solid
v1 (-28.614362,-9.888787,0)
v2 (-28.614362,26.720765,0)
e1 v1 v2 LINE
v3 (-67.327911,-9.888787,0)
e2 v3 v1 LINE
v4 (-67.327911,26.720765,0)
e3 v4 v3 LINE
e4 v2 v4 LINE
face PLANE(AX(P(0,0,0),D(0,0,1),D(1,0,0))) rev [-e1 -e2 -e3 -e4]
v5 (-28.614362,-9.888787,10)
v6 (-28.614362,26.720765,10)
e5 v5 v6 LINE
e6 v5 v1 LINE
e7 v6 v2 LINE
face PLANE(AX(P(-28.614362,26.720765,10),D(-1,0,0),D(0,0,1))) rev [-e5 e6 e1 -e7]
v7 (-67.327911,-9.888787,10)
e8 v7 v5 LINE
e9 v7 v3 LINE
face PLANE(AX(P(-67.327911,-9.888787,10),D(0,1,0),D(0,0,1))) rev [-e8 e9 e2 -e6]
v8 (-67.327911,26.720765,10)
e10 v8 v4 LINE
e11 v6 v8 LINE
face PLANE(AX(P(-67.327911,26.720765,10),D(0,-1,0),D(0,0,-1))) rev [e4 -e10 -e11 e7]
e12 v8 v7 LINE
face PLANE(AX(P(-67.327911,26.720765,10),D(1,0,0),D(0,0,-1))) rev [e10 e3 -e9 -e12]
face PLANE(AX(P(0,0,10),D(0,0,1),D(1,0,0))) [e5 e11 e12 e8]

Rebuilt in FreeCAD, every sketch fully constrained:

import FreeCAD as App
import Part
import Sketcher
Q = App.Units.Quantity

doc = App.newDocument("Part")
body = doc.addObject("PartDesign::Body", "Body")

# Sketch on XY plane
sketch1 = body.newObject("Sketcher::SketchObject", "Sketch")
sketch1.AttachmentSupport = (doc.getObject("XY_Plane"), [""])
sketch1.MapMode = "FlatFace"
sketch1.addGeometry([
    Part.LineSegment(App.Vector(-67, 27, 0), App.Vector(-67, -10, 0)),
    Part.LineSegment(App.Vector(-67, -10, 0), App.Vector(-29, -10, 0)),
    Part.LineSegment(App.Vector(-29, -10, 0), App.Vector(-29, 27, 0)),
    Part.LineSegment(App.Vector(-29, 27, 0), App.Vector(-67, 27, 0)),
], False)
sketch1.addConstraint([
    Sketcher.Constraint("Coincident", 0, 2, 1, 1),
    Sketcher.Constraint("Coincident", 1, 2, 2, 1),
    Sketcher.Constraint("Coincident", 2, 2, 3, 1),
    Sketcher.Constraint("Coincident", 3, 2, 0, 1),
    Sketcher.Constraint("Vertical", 0),
    Sketcher.Constraint("Horizontal", 1),
    Sketcher.Constraint("Vertical", 2),
    Sketcher.Constraint("Horizontal", 3),
    Sketcher.Constraint("DistanceX", 1, 1, 1, 2, Q("38.713549 mm")),
    Sketcher.Constraint("DistanceY", 0, 2, 0, 1, Q("36.609551 mm")),
    Sketcher.Constraint("DistanceX", 0, 2, -1, 1, Q("67.327911 mm")),
    Sketcher.Constraint("DistanceY", 0, 2, -1, 1, Q("9.888787 mm")),
])
pad1 = body.newObject("PartDesign::Pad", "Pad")
pad1.Profile = sketch1
pad1.Length = 10

doc.recompute()
